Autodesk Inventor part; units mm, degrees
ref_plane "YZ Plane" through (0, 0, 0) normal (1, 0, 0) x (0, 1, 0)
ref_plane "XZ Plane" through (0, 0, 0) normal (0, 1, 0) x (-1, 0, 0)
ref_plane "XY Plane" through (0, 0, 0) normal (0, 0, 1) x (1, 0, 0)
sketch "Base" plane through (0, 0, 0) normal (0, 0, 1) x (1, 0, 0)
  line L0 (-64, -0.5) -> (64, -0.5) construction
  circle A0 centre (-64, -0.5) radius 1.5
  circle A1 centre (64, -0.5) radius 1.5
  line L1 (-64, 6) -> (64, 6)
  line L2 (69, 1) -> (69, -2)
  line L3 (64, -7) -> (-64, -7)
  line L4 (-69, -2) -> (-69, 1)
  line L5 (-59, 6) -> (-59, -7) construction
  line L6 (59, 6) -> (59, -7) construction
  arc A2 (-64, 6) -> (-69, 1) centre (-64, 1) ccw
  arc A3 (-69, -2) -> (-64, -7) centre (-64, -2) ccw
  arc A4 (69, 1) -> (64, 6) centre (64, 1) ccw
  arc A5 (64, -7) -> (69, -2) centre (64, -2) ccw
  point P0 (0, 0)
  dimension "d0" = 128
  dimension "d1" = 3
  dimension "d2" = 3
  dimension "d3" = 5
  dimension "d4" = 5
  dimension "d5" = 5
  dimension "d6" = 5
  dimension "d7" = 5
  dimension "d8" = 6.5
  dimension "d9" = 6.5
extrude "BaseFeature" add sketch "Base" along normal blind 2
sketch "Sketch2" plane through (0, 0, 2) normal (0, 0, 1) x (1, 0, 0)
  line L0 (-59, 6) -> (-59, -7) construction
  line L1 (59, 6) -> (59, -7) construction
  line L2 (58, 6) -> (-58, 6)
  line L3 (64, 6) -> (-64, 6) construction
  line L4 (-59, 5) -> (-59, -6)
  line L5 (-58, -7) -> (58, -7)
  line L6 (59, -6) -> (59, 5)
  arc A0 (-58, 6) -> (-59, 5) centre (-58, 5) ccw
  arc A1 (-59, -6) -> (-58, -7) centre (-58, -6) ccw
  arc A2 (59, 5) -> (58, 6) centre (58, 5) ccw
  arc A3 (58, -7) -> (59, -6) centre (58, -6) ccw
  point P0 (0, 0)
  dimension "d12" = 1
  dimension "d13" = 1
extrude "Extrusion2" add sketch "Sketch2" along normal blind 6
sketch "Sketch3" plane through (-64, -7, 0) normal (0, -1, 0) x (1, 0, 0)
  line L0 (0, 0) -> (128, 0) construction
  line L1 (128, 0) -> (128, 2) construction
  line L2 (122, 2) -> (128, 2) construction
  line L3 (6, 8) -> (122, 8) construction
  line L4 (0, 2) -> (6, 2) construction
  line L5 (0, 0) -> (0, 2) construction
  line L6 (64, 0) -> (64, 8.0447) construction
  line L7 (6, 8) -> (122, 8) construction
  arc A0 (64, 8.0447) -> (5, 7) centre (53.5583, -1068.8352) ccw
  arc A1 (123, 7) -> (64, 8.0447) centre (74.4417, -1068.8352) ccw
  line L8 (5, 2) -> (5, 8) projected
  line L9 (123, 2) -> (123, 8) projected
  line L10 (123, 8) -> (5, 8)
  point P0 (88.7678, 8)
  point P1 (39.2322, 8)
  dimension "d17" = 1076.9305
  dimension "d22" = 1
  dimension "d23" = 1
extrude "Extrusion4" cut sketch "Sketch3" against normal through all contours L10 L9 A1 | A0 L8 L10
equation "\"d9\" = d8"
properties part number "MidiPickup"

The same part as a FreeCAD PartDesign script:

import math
import FreeCAD as App
import Part
import Sketcher
Q = App.Units.Quantity

doc = App.newDocument("Part")
body = doc.addObject("PartDesign::Body", "Body")

# Sketch on XY plane
sketch1 = body.newObject("Sketcher::SketchObject", "Sketch")
sketch1.AttachmentSupport = (doc.getObject("XY_Plane"), [""])
sketch1.MapMode = "FlatFace"
sketch1.addGeometry(Part.LineSegment(App.Vector(64, 6, 0), App.Vector(-64, 6, 0)), False)
sketch1.addGeometry(Part.ArcOfCircle(Part.Circle(App.Vector(-64, 1, 0), App.Vector(0, 0, 1), 5), math.radians(90), math.radians(180)), False)
sketch1.addGeometry(Part.LineSegment(App.Vector(-69, 1, 0), App.Vector(-69, -2, 0)), False)
sketch1.addGeometry(Part.ArcOfCircle(Part.Circle(App.Vector(-64, -2, 0), App.Vector(0, 0, 1), 5), math.radians(180), math.radians(270)), False)
sketch1.addGeometry(Part.LineSegment(App.Vector(-64, -7, 0), App.Vector(64, -7, 0)), False)
sketch1.addGeometry(Part.ArcOfCircle(Part.Circle(App.Vector(64, -2, 0), App.Vector(0, 0, 1), 5), math.radians(-90), math.radians(0)), False)
sketch1.addGeometry(Part.LineSegment(App.Vector(69, -2, 0), App.Vector(69, 1, 0)), False)
sketch1.addGeometry(Part.ArcOfCircle(Part.Circle(App.Vector(64, 1, 0), App.Vector(0, 0, 1), 5), math.radians(0), math.radians(90)), False)
sketch1.addGeometry(Part.Circle(App.Vector(-64, -0.5, 0), App.Vector(0, 0, 1), 1.5), False)
sketch1.addGeometry(Part.Circle(App.Vector(64, -0.5, 0), App.Vector(0, 0, 1), 1.5), False)
sketch1.addConstraint(Sketcher.Constraint("Tangent", 0, 2, 1, 1))
sketch1.addConstraint(Sketcher.Constraint("Tangent", 1, 2, 2, 1))
sketch1.addConstraint(Sketcher.Constraint("Tangent", 2, 2, 3, 1))
sketch1.addConstraint(Sketcher.Constraint("Tangent", 3, 2, 4, 1))
sketch1.addConstraint(Sketcher.Constraint("Tangent", 4, 2, 5, 1))
sketch1.addConstraint(Sketcher.Constraint("Tangent", 5, 2, 6, 1))
sketch1.addConstraint(Sketcher.Constraint("Tangent", 6, 2, 7, 1))
sketch1.addConstraint(Sketcher.Constraint("Tangent", 7, 2, 0, 1))
sketch1.addConstraint(Sketcher.Constraint("Horizontal", 0))
sketch1.addConstraint(Sketcher.Constraint("Vertical", 2))
sketch1.addConstraint(Sketcher.Constraint("Horizontal", 4))
sketch1.addConstraint(Sketcher.Constraint("Vertical", 6))
sketch1.addConstraint(Sketcher.Constraint("Equal", 1, 3))
sketch1.addConstraint(Sketcher.Constraint("Equal", 3, 5))
sketch1.addConstraint(Sketcher.Constraint("Equal", 5, 7))
sketch1.addConstraint(Sketcher.Constraint("Equal", 8, 9))
sketch1.addConstraint(Sketcher.Constraint("Symmetric", 8, 3, 9, 3, -2))
sketch1.addConstraint(Sketcher.Constraint("Vertical", 3, 3, 8, 3))
sketch1.addConstraint(Sketcher.Constraint("Vertical", 7, 3, 9, 3))
sketch1.addConstraint(Sketcher.Constraint("Diameter", 8, Q("3 mm")))
sketch1.addConstraint(Sketcher.Constraint("Radius", 1, Q("5 mm")))
sketch1.addConstraint(Sketcher.Constraint("DistanceX", 0, 2, 0, 1, Q("128 mm")))
sketch1.addConstraint(Sketcher.Constraint("DistanceY", 2, 2, 2, 1, Q("3 mm")))
sketch1.addConstraint(Sketcher.Constraint("DistanceY", 8, 3, 0, 2, Q("6.5 mm")))
sketch1.addConstraint(Sketcher.Constraint("DistanceY", -1, 1, 1, 3, Q("1 mm")))
pad1 = body.newObject("PartDesign::Pad", "Pad")
pad1.Profile = sketch1
pad1.Length = 2

# Sketch on XY plane
sketch2 = body.newObject("Sketcher::SketchObject", "Sketch001")
sketch2.AttachmentSupport = (doc.getObject("XY_Plane"), [""])
sketch2.MapMode = "FlatFace"
sketch2.AttachmentOffset = App.Placement(App.Vector(0, 0, 2), App.Rotation())
sketch2.addGeometry(Part.ArcOfCircle(Part.Circle(App.Vector(58, 5, 0), App.Vector(0, 0, 1), 1), math.radians(0), math.radians(90)), False)
sketch2.addGeometry(Part.LineSegment(App.Vector(58, 6, 0), App.Vector(-58, 6, 0)), False)
sketch2.addGeometry(Part.ArcOfCircle(Part.Circle(App.Vector(-58, 5, 0), App.Vector(0, 0, 1), 1), math.radians(90), math.radians(180)), False)
sketch2.addGeometry(Part.LineSegment(App.Vector(-59, 5, 0), App.Vector(-59, -6, 0)), False)
sketch2.addGeometry(Part.ArcOfCircle(Part.Circle(App.Vector(-58, -6, 0), App.Vector(0, 0, 1), 1), math.radians(180), math.radians(270)), False)
sketch2.addGeometry(Part.LineSegment(App.Vector(-58, -7, 0), App.Vector(58, -7, 0)), False)
sketch2.addGeometry(Part.ArcOfCircle(Part.Circle(App.Vector(58, -6, 0), App.Vector(0, 0, 1), 1), math.radians(-90), math.radians(0)), False)
sketch2.addGeometry(Part.LineSegment(App.Vector(59, -6, 0), App.Vector(59, 5, 0)), False)
sketch2.addConstraint(Sketcher.Constraint("Tangent", 0, 2, 1, 1))
sketch2.addConstraint(Sketcher.Constraint("Tangent", 1, 2, 2, 1))
sketch2.addConstraint(Sketcher.Constraint("Tangent", 2, 2, 3, 1))
sketch2.addConstraint(Sketcher.Constraint("Tangent", 3, 2, 4, 1))
sketch2.addConstraint(Sketcher.Constraint("Tangent", 4, 2, 5, 1))
sketch2.addConstraint(Sketcher.Constraint("Tangent", 5, 2, 6, 1))
sketch2.addConstraint(Sketcher.Constraint("Tangent", 6, 2, 7, 1))
sketch2.addConstraint(Sketcher.Constraint("Tangent", 7, 2, 0, 1))
sketch2.addConstraint(Sketcher.Constraint("Horizontal", 1))
sketch2.addConstraint(Sketcher.Constraint("Vertical", 3))
sketch2.addConstraint(Sketcher.Constraint("Horizontal", 5))
sketch2.addConstraint(Sketcher.Constraint("Vertical", 7))
sketch2.addConstraint(Sketcher.Constraint("Equal", 0, 2))
sketch2.addConstraint(Sketcher.Constraint("Equal", 2, 4))
sketch2.addConstraint(Sketcher.Constraint("Equal", 4, 6))
sketch2.addConstraint(Sketcher.Constraint("Radius", 0, Q("1 mm")))
sketch2.addConstraint(Sketcher.Constraint("DistanceX", 1, 2, 1, 1, Q("116 mm")))
sketch2.addConstraint(Sketcher.Constraint("DistanceY", 3, 2, 3, 1, Q("11 mm")))
sketch2.addConstraint(Sketcher.Constraint("DistanceX", -1, 1, 0, 3, Q("58 mm")))
sketch2.addConstraint(Sketcher.Constraint("DistanceY", -1, 1, 0, 3, Q("5 mm")))
pad2 = body.newObject("PartDesign::Pad", "Pad001")
pad2.Profile = sketch2
pad2.Length = 6

# Sketch on XZ plane
sketch3 = body.newObject("Sketcher::SketchObject", "Sketch002")
sketch3.AttachmentSupport = (doc.getObject("XZ_Plane"), [""])
sketch3.MapMode = "FlatFace"
sketch3.AttachmentOffset = App.Placement(App.Vector(0, 0, 7), App.Rotation())
sketch3.addGeometry(Part.LineSegment(App.Vector(59, 8, 0), App.Vector(24.8, 8, 0)), False)
sketch3.addGeometry(Part.ArcOfCircle(Part.Circle(App.Vector(10.4, -1068.9, 0), App.Vector(0, 0, 1), 1077), math.radians(87.42), math.radians(89.24)), False)
sketch3.addGeometry(Part.LineSegment(App.Vector(59, 7, 0), App.Vector(59, 8, 0)), False)
sketch3.addGeometry(Part.ArcOfCircle(Part.Circle(App.Vector(-10.4, -1068.8, 0), App.Vector(0, 0, 1), 1076.9), math.radians(90.76), math.radians(92.58)), False)
sketch3.addGeometry(Part.LineSegment(App.Vector(-24.8, 8, 0), App.Vector(-59, 8, 0)), False)
sketch3.addGeometry(Part.LineSegment(App.Vector(-59, 8, 0), App.Vector(-59, 7, 0)), False)
sketch3.addConstraint(Sketcher.Constraint("Coincident", 0, 2, 1, 2))
sketch3.addConstraint(Sketcher.Constraint("Coincident", 1, 1, 2, 1))
sketch3.addConstraint(Sketcher.Constraint("Coincident", 2, 2, 0, 1))
sketch3.addConstraint(Sketcher.Constraint("Coincident", 3, 1, 4, 1))
sketch3.addConstraint(Sketcher.Constraint("Coincident", 4, 2, 5, 1))
sketch3.addConstraint(Sketcher.Constraint("Coincident", 5, 2, 3, 2))
sketch3.addConstraint(Sketcher.Constraint("Horizontal", 0))
sketch3.addConstraint(Sketcher.Constraint("Vertical", 2))
sketch3.addConstraint(Sketcher.Constraint("Horizontal", 4))
sketch3.addConstraint(Sketcher.Constraint("Vertical", 5))
sketch3.addConstraint(Sketcher.Constraint("Symmetric", 2, 2, 4, 2, -2))
sketch3.addConstraint(Sketcher.Constraint("Equal", 2, 5))
sketch3.addConstraint(Sketcher.Constraint("DistanceY", 2, 1, 2, 2, Q("1 mm")))
sketch3.addConstraint(Sketcher.Constraint("DistanceY", -1, 1, 0, 2, Q("8 mm")))
sketch3.addConstraint(Sketcher.Constraint("DistanceX", -1, 1, 2, 2, Q("59 mm")))
sketch3.addConstraint(Sketcher.Constraint("Radius", 1, Q("1076.9689 mm")))
sketch3.addConstraint(Sketcher.Constraint("Radius", 3, Q("1076.8921 mm")))
sketch3.addConstraint(Sketcher.Constraint("DistanceX", 0, 2, 0, 1, Q("34.232 mm")))
sketch3.addConstraint(Sketcher.Constraint("DistanceX", 3, 3, 0, 2, Q("35.21 mm")))
pocket1 = body.newObject("PartDesign::Pocket", "Pocket")
pocket1.Profile = sketch3
pocket1.Type = "ThroughAll"

doc.recompute()
